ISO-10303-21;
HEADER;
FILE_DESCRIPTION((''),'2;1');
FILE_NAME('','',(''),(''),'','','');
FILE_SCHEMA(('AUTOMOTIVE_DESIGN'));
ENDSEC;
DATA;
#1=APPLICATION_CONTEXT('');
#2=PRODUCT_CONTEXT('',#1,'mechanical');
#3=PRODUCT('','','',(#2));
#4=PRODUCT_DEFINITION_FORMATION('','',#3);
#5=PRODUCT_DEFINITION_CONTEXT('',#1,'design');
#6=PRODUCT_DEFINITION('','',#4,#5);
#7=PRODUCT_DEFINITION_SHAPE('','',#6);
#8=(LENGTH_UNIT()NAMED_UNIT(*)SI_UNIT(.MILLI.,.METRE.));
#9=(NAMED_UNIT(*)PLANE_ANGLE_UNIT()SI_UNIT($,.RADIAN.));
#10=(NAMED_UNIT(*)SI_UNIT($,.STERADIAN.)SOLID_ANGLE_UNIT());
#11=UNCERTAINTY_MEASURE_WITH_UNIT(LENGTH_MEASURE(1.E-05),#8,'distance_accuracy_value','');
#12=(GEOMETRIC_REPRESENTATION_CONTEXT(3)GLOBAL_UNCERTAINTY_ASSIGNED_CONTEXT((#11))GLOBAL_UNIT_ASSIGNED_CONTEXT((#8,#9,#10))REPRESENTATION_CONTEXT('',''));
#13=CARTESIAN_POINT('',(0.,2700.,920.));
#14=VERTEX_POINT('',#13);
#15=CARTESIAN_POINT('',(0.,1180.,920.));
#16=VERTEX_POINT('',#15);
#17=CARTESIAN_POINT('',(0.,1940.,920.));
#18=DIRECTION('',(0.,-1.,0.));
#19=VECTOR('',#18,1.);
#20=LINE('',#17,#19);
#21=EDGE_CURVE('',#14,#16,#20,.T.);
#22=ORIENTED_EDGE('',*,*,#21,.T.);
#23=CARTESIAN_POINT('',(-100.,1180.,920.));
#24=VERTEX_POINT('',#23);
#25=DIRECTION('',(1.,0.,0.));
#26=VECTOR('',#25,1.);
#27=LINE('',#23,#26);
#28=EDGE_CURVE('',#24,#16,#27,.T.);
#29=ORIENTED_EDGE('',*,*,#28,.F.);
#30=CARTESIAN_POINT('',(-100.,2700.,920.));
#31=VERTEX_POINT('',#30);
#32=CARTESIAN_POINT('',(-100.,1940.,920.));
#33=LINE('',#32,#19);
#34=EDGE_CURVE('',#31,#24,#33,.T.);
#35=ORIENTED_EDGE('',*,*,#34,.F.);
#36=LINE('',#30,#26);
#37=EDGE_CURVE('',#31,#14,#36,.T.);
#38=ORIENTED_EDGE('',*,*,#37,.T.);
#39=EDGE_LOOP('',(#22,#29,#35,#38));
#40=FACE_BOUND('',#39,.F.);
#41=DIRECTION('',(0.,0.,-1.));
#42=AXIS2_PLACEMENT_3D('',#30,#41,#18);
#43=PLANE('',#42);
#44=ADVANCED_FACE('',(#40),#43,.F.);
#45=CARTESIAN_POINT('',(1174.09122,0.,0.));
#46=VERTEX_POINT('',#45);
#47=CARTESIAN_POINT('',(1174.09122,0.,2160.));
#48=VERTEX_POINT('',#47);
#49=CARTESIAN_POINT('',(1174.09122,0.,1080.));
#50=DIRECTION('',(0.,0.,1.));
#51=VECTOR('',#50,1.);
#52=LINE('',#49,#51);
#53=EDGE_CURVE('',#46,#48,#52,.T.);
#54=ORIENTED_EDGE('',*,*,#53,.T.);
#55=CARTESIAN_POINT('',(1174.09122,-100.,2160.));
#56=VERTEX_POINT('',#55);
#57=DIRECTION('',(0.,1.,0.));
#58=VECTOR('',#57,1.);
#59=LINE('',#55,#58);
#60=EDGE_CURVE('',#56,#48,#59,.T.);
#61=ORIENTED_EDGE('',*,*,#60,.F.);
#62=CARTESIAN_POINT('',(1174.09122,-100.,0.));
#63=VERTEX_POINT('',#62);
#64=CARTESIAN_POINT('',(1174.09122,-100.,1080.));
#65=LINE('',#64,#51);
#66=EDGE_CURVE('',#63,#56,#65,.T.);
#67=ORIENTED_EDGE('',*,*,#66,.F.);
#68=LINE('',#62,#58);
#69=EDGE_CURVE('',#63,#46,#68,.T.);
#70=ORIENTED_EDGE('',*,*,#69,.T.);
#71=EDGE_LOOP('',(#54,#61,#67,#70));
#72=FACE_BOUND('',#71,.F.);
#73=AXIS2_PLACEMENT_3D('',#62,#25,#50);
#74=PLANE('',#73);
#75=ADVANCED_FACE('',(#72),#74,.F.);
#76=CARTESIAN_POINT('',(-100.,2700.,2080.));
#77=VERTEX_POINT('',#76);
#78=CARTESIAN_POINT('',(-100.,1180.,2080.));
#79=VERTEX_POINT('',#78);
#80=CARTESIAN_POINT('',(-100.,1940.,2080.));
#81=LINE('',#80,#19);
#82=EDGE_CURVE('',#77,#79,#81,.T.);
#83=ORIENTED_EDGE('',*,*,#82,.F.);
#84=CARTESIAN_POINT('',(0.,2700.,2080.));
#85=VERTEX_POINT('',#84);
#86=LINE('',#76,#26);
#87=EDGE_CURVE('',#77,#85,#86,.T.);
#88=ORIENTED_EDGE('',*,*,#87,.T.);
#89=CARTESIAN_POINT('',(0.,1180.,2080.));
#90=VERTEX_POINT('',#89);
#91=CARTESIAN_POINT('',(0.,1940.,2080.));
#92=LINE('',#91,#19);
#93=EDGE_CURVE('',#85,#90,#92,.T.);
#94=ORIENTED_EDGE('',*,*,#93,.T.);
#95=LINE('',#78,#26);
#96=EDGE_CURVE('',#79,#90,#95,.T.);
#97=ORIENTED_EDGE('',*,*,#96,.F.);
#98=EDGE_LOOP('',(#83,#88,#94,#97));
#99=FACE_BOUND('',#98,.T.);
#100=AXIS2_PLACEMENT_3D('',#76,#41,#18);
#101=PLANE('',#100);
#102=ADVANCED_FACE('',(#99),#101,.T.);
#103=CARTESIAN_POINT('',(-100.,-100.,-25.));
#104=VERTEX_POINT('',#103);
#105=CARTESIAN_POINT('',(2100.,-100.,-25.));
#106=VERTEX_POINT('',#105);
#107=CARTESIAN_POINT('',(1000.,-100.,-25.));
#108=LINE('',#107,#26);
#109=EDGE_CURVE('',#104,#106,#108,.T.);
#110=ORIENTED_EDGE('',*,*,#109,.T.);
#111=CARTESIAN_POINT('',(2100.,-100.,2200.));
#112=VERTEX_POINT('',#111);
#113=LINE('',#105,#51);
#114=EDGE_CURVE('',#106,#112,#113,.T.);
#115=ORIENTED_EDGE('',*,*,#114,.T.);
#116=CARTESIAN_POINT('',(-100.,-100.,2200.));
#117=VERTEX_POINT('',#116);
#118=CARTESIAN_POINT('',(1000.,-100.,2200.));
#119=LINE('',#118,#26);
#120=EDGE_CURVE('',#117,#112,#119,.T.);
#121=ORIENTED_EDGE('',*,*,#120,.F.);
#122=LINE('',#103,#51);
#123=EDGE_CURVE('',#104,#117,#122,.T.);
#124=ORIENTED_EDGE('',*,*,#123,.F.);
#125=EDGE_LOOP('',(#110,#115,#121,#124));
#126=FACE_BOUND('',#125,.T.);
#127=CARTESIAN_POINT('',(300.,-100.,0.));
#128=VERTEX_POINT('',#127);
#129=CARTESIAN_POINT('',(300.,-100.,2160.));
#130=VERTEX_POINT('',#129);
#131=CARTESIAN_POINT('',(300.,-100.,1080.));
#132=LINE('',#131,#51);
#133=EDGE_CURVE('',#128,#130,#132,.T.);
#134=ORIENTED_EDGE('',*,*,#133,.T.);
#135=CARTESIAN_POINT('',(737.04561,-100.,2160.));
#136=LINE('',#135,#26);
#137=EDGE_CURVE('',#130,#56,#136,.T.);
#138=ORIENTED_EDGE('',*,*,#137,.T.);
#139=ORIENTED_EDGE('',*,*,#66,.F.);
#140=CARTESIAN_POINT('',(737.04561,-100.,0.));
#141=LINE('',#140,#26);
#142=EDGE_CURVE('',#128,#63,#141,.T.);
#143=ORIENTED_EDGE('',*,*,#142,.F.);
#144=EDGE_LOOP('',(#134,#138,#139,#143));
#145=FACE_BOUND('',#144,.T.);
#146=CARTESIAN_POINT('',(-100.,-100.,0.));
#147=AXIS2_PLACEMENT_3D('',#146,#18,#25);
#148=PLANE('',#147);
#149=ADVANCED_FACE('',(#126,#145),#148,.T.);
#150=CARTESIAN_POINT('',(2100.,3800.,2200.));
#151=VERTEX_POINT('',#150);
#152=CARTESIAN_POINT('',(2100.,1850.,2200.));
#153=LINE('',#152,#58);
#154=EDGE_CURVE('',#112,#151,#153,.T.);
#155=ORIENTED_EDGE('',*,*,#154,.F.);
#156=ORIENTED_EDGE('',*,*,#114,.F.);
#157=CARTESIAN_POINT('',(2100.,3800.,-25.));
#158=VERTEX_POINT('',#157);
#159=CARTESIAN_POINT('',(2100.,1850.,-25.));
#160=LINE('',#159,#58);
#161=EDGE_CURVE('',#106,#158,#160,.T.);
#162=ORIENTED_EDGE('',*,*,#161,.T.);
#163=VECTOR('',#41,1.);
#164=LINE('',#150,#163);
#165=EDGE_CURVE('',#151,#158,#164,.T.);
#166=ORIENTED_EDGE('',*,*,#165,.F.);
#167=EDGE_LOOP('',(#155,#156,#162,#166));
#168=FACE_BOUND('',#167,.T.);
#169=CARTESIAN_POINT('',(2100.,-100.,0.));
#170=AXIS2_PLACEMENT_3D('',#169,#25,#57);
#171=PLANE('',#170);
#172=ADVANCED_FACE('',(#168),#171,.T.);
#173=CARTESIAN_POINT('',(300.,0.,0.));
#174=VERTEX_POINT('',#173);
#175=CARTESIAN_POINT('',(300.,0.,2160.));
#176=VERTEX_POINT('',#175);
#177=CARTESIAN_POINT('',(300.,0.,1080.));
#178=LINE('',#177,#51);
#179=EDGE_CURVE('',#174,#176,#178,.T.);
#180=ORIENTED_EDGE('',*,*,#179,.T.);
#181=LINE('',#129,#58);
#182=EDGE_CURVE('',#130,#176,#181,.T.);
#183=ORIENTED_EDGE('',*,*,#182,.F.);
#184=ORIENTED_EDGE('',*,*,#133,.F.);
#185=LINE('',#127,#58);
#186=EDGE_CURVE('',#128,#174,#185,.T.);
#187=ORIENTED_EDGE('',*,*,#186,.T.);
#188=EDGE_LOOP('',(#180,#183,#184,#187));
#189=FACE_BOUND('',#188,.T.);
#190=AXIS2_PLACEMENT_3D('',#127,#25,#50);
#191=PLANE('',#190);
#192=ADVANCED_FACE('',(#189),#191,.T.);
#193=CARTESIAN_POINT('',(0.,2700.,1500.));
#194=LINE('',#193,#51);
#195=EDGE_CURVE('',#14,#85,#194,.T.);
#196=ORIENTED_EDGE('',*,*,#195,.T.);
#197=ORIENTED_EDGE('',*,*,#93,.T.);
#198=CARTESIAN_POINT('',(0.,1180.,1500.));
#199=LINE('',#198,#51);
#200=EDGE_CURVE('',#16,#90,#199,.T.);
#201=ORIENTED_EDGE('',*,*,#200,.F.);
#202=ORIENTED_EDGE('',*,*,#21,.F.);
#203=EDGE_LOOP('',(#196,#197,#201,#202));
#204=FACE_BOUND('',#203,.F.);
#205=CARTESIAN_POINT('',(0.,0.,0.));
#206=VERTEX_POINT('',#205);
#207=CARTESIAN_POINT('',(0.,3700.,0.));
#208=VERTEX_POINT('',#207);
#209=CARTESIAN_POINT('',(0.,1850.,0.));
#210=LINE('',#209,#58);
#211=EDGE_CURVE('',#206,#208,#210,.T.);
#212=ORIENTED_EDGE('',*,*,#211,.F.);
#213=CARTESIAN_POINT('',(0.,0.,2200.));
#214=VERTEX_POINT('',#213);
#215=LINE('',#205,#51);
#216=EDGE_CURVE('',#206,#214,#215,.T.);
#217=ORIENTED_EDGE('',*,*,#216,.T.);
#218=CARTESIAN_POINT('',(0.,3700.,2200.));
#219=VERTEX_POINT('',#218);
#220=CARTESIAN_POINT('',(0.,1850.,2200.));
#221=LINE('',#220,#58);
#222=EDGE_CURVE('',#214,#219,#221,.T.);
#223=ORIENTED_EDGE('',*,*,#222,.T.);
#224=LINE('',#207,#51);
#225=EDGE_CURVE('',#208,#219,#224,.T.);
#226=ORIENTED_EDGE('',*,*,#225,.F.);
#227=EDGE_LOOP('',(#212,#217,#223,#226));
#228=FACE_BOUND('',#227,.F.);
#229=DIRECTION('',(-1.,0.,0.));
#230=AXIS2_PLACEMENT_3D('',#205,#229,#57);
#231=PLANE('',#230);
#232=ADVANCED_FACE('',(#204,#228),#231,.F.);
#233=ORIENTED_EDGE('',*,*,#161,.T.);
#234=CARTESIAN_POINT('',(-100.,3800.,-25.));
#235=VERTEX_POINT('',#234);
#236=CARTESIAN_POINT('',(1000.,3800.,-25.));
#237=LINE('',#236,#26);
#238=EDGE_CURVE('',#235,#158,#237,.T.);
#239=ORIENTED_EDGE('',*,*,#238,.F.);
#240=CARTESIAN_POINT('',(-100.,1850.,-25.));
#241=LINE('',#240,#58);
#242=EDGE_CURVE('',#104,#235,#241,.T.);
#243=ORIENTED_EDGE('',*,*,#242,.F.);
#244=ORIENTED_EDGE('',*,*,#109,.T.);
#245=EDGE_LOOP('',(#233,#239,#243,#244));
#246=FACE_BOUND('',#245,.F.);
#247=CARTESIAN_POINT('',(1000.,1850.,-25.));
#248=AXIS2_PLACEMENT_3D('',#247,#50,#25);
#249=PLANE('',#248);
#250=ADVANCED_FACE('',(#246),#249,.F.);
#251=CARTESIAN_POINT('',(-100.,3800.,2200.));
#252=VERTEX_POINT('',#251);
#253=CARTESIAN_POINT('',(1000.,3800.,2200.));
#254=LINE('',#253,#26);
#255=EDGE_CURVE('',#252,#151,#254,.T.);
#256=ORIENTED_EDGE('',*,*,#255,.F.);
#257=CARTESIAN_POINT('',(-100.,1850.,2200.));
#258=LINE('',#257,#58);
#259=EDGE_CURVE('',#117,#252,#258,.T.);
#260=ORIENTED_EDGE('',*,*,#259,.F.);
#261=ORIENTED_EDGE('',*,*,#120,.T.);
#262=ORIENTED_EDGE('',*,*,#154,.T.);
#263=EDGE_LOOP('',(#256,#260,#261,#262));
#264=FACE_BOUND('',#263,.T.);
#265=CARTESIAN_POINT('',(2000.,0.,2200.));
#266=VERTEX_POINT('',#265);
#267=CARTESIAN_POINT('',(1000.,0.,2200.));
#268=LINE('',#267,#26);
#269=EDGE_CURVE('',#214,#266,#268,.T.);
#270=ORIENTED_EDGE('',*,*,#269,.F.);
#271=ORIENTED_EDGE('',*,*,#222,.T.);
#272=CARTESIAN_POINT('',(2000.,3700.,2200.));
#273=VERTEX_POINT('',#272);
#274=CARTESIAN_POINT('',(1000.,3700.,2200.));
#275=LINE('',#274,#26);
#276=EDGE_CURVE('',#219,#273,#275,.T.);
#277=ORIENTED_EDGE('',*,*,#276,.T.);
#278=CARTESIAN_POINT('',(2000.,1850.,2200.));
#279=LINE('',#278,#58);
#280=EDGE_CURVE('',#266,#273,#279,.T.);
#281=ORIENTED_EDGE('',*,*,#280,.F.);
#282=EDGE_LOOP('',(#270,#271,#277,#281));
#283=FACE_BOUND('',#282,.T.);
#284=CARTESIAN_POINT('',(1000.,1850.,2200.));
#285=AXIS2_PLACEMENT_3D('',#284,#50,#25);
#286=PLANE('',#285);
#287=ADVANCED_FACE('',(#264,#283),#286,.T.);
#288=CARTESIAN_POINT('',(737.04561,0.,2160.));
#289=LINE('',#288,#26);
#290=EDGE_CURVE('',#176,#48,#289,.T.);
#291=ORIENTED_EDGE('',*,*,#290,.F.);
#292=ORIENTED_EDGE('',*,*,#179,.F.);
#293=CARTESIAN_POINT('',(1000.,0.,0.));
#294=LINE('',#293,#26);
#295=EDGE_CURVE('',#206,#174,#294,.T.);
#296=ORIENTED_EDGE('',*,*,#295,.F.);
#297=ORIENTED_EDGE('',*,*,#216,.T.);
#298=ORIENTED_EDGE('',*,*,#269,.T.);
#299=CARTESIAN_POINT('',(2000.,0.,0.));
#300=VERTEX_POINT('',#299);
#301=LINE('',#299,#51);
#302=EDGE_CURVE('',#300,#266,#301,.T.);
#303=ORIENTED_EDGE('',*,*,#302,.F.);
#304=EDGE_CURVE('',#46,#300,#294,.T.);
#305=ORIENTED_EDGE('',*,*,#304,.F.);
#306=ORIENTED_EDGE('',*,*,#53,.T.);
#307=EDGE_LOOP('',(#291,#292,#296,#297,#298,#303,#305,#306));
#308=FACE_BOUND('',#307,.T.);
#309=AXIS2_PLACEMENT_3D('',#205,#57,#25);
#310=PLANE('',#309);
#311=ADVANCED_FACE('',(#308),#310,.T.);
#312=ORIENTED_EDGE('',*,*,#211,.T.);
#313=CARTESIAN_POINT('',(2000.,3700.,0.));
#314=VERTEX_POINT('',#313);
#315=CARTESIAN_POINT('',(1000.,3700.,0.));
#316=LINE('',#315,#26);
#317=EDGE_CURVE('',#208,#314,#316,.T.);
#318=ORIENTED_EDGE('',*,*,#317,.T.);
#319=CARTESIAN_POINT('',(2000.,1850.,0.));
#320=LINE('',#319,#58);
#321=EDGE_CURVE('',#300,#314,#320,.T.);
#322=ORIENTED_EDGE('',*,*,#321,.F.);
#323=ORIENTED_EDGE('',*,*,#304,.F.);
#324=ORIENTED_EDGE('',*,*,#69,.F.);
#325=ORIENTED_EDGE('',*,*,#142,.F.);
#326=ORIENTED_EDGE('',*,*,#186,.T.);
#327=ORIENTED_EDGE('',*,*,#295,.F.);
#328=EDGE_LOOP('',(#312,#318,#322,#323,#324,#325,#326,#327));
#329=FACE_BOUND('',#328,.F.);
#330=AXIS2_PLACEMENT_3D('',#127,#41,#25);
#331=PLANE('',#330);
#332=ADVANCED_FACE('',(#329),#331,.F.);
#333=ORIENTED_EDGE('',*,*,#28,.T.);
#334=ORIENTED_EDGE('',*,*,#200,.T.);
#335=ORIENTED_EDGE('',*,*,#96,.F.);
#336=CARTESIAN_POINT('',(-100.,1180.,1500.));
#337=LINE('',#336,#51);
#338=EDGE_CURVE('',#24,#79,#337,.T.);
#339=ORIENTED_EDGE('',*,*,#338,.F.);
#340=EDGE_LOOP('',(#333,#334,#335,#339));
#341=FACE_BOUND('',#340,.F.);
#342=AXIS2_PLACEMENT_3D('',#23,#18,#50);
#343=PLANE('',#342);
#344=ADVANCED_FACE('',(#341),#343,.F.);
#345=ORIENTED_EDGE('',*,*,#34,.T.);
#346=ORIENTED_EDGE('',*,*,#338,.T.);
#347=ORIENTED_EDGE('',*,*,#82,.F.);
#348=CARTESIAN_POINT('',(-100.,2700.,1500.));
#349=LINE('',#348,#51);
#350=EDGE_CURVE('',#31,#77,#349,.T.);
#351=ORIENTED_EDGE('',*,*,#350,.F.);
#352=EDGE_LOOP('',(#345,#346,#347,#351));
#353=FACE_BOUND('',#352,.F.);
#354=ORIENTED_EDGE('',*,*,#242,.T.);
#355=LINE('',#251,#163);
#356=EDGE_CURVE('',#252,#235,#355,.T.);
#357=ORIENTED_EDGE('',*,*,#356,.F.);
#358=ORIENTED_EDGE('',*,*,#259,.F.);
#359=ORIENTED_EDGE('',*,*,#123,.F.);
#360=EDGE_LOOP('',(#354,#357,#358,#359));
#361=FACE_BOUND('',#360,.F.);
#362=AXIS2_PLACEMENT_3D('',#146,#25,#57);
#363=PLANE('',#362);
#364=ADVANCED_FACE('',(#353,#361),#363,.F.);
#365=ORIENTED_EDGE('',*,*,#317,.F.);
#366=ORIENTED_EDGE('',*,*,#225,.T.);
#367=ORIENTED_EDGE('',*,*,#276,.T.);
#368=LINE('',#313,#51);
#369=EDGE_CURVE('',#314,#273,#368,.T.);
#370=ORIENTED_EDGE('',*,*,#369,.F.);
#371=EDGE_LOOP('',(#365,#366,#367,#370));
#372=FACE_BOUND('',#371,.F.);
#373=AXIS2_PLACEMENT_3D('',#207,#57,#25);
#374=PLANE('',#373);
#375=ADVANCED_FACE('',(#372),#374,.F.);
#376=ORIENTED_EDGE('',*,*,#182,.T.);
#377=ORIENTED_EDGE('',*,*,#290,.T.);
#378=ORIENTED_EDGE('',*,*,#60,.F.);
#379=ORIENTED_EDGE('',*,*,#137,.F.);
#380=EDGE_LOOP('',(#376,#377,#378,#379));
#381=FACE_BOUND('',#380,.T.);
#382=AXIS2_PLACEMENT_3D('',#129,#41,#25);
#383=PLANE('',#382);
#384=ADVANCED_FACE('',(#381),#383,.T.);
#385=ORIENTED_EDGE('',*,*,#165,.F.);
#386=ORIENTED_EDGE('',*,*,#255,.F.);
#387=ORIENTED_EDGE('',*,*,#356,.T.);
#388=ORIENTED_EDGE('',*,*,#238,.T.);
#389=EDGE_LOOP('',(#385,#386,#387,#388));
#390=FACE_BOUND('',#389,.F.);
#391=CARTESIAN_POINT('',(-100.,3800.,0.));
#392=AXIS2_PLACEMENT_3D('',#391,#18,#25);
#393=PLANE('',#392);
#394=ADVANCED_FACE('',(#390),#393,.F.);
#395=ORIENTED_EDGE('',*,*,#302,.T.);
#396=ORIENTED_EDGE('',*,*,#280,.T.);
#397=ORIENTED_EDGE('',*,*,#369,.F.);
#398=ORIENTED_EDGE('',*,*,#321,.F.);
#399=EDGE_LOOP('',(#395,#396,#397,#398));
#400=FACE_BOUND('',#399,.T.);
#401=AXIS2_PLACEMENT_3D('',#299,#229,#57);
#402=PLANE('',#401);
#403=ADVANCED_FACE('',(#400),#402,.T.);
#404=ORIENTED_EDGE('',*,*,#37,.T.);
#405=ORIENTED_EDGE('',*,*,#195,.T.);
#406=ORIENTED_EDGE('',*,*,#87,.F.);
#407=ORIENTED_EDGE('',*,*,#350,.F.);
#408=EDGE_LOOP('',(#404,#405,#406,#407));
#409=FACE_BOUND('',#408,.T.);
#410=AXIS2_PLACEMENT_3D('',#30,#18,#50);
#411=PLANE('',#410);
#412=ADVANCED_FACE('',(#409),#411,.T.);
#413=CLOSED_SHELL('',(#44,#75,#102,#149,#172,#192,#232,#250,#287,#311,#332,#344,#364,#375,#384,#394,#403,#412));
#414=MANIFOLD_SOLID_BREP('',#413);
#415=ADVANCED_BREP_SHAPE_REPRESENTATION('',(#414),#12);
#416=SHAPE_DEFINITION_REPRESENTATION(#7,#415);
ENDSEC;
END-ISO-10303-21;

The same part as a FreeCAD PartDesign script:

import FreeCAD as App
import Part
import Sketcher

V = App.Vector
Q = App.Units.Quantity


def add_polygon(sketch, points):
    """Adds a closed chain of lines whose ends are joined by coincident constraints."""
    first, n = sketch.GeometryCount, len(points)
    for a, b in zip(points, points[1:] + points[:1]):
        sketch.addGeometry(Part.LineSegment(App.Vector(*a, 0), App.Vector(*b, 0)), False)
    for i in range(n):
        sketch.addConstraint(Sketcher.Constraint("Coincident", first + i, 2, first + (i + 1) % n, 1))

doc = App.newDocument("Part")
body = doc.addObject("PartDesign::Body", "Body")

sketch1 = body.newObject("Sketcher::SketchObject", "Sketch")
sketch1.AttachmentSupport = (doc.getObject("XY_Plane"), [""])
sketch1.MapMode = "FlatFace"
add_polygon(sketch1, [(-100, 3800), (-100, -100), (2100, -100), (2100, 3800)])
add_polygon(sketch1, [(2000, 0), (0, 0), (0, 3700), (2000, 3700)])
sketch1.addConstraint([
    Sketcher.Constraint("Vertical", 0),
    Sketcher.Constraint("Horizontal", 1),
    Sketcher.Constraint("Vertical", 2),
    Sketcher.Constraint("Horizontal", 3),
    Sketcher.Constraint("Horizontal", 4),
    Sketcher.Constraint("Vertical", 5),
    Sketcher.Constraint("Horizontal", 6),
    Sketcher.Constraint("Vertical", 7),
    Sketcher.Constraint("Coincident", 4, 2, -1, 1),
    Sketcher.Constraint("DistanceX", 1, 1, 1, 2, Q("2200 mm")),
    Sketcher.Constraint("DistanceX", 4, 2, 4, 1, Q("2000 mm")),
    Sketcher.Constraint("DistanceY", 0, 2, 0, 1, Q("3900 mm")),
    Sketcher.Constraint("DistanceY", 5, 1, 5, 2, Q("3700 mm")),
    Sketcher.Constraint("DistanceX", 0, 2, -1, 1, Q("100 mm")),
    Sketcher.Constraint("DistanceY", 0, 2, -1, 1, Q("100 mm")),
])
pad1 = body.newObject("PartDesign::Pad", "Pad")
pad1.Profile = sketch1
pad1.Length = 2200

sketch2 = body.newObject("Sketcher::SketchObject", "Sketch001")
sketch2.AttachmentSupport = (doc.getObject("XY_Plane"), [""])
sketch2.MapMode = "FlatFace"
add_polygon(sketch2, [(-100, 3800), (-100, -100), (2100, -100), (2100, 3800)])
sketch2.addConstraint([
    Sketcher.Constraint("Vertical", 0),
    Sketcher.Constraint("Horizontal", 1),
    Sketcher.Constraint("Vertical", 2),
    Sketcher.Constraint("Horizontal", 3),
    Sketcher.Constraint("DistanceX", 1, 1, 1, 2, Q("2200 mm")),
    Sketcher.Constraint("DistanceY", 0, 2, 0, 1, Q("3900 mm")),
    Sketcher.Constraint("DistanceX", 0, 2, -1, 1, Q("100 mm")),
    Sketcher.Constraint("DistanceY", 0, 2, -1, 1, Q("100 mm")),
])
pad2 = body.newObject("PartDesign::Pad", "Pad001")
pad2.Profile = sketch2
pad2.Length = 25
pad2.Reversed = True

sketch3 = body.newObject("Sketcher::SketchObject", "Sketch002")
sketch3.AttachmentSupport = (doc.getObject("XZ_Plane"), [""])
sketch3.MapMode = "FlatFace"
sketch3.AttachmentOffset = App.Placement(V(0, 0, 100), App.Rotation())
add_polygon(sketch3, [(300, 2160), (300, 0), (1174, 0), (1174, 2160)])
sketch3.addConstraint([
    Sketcher.Constraint("Vertical", 0),
    Sketcher.Constraint("Horizontal", 1),
    Sketcher.Constraint("Vertical", 2),
    Sketcher.Constraint("Horizontal", 3),
    Sketcher.Constraint("PointOnObject", 0, 2, -1),
    Sketcher.Constraint("DistanceY", 0, 2, 0, 1, Q("2160 mm")),
    Sketcher.Constraint("DistanceX", -1, 1, 0, 2, Q("300 mm")),
    Sketcher.Constraint("DistanceX", 1, 1, 1, 2, Q("874.09122 mm")),
])
pocket1 = body.newObject("PartDesign::Pocket", "Pocket")
pocket1.Profile = sketch3
pocket1.Length = 100

sketch4 = body.newObject("Sketcher::SketchObject", "Sketch003")
sketch4.AttachmentSupport = (doc.getObject("YZ_Plane"), [""])
sketch4.MapMode = "FlatFace"
sketch4.AttachmentOffset = App.Placement(V(0, 0, -100), App.Rotation())
add_polygon(sketch4, [(2700, 2080), (2700, 920), (1180, 920), (1180, 2080)])
sketch4.addConstraint([
    Sketcher.Constraint("Vertical", 0),
    Sketcher.Constraint("Horizontal", 1),
    Sketcher.Constraint("Vertical", 2),
    Sketcher.Constraint("Horizontal", 3),
    Sketcher.Constraint("DistanceX", 1, 2, 1, 1, Q("1520 mm")),
    Sketcher.Constraint("DistanceY", 0, 2, 0, 1, Q("1160 mm")),
    Sketcher.Constraint("DistanceX", -1, 1, 0, 2, Q("2700 mm")),
    Sketcher.Constraint("DistanceY", -1, 1, 0, 2, Q("920 mm")),
])
pocket2 = body.newObject("PartDesign::Pocket", "Pocket001")
pocket2.Profile = sketch4
pocket2.Length = 100
pocket2.Reversed = True

doc.recompute()
